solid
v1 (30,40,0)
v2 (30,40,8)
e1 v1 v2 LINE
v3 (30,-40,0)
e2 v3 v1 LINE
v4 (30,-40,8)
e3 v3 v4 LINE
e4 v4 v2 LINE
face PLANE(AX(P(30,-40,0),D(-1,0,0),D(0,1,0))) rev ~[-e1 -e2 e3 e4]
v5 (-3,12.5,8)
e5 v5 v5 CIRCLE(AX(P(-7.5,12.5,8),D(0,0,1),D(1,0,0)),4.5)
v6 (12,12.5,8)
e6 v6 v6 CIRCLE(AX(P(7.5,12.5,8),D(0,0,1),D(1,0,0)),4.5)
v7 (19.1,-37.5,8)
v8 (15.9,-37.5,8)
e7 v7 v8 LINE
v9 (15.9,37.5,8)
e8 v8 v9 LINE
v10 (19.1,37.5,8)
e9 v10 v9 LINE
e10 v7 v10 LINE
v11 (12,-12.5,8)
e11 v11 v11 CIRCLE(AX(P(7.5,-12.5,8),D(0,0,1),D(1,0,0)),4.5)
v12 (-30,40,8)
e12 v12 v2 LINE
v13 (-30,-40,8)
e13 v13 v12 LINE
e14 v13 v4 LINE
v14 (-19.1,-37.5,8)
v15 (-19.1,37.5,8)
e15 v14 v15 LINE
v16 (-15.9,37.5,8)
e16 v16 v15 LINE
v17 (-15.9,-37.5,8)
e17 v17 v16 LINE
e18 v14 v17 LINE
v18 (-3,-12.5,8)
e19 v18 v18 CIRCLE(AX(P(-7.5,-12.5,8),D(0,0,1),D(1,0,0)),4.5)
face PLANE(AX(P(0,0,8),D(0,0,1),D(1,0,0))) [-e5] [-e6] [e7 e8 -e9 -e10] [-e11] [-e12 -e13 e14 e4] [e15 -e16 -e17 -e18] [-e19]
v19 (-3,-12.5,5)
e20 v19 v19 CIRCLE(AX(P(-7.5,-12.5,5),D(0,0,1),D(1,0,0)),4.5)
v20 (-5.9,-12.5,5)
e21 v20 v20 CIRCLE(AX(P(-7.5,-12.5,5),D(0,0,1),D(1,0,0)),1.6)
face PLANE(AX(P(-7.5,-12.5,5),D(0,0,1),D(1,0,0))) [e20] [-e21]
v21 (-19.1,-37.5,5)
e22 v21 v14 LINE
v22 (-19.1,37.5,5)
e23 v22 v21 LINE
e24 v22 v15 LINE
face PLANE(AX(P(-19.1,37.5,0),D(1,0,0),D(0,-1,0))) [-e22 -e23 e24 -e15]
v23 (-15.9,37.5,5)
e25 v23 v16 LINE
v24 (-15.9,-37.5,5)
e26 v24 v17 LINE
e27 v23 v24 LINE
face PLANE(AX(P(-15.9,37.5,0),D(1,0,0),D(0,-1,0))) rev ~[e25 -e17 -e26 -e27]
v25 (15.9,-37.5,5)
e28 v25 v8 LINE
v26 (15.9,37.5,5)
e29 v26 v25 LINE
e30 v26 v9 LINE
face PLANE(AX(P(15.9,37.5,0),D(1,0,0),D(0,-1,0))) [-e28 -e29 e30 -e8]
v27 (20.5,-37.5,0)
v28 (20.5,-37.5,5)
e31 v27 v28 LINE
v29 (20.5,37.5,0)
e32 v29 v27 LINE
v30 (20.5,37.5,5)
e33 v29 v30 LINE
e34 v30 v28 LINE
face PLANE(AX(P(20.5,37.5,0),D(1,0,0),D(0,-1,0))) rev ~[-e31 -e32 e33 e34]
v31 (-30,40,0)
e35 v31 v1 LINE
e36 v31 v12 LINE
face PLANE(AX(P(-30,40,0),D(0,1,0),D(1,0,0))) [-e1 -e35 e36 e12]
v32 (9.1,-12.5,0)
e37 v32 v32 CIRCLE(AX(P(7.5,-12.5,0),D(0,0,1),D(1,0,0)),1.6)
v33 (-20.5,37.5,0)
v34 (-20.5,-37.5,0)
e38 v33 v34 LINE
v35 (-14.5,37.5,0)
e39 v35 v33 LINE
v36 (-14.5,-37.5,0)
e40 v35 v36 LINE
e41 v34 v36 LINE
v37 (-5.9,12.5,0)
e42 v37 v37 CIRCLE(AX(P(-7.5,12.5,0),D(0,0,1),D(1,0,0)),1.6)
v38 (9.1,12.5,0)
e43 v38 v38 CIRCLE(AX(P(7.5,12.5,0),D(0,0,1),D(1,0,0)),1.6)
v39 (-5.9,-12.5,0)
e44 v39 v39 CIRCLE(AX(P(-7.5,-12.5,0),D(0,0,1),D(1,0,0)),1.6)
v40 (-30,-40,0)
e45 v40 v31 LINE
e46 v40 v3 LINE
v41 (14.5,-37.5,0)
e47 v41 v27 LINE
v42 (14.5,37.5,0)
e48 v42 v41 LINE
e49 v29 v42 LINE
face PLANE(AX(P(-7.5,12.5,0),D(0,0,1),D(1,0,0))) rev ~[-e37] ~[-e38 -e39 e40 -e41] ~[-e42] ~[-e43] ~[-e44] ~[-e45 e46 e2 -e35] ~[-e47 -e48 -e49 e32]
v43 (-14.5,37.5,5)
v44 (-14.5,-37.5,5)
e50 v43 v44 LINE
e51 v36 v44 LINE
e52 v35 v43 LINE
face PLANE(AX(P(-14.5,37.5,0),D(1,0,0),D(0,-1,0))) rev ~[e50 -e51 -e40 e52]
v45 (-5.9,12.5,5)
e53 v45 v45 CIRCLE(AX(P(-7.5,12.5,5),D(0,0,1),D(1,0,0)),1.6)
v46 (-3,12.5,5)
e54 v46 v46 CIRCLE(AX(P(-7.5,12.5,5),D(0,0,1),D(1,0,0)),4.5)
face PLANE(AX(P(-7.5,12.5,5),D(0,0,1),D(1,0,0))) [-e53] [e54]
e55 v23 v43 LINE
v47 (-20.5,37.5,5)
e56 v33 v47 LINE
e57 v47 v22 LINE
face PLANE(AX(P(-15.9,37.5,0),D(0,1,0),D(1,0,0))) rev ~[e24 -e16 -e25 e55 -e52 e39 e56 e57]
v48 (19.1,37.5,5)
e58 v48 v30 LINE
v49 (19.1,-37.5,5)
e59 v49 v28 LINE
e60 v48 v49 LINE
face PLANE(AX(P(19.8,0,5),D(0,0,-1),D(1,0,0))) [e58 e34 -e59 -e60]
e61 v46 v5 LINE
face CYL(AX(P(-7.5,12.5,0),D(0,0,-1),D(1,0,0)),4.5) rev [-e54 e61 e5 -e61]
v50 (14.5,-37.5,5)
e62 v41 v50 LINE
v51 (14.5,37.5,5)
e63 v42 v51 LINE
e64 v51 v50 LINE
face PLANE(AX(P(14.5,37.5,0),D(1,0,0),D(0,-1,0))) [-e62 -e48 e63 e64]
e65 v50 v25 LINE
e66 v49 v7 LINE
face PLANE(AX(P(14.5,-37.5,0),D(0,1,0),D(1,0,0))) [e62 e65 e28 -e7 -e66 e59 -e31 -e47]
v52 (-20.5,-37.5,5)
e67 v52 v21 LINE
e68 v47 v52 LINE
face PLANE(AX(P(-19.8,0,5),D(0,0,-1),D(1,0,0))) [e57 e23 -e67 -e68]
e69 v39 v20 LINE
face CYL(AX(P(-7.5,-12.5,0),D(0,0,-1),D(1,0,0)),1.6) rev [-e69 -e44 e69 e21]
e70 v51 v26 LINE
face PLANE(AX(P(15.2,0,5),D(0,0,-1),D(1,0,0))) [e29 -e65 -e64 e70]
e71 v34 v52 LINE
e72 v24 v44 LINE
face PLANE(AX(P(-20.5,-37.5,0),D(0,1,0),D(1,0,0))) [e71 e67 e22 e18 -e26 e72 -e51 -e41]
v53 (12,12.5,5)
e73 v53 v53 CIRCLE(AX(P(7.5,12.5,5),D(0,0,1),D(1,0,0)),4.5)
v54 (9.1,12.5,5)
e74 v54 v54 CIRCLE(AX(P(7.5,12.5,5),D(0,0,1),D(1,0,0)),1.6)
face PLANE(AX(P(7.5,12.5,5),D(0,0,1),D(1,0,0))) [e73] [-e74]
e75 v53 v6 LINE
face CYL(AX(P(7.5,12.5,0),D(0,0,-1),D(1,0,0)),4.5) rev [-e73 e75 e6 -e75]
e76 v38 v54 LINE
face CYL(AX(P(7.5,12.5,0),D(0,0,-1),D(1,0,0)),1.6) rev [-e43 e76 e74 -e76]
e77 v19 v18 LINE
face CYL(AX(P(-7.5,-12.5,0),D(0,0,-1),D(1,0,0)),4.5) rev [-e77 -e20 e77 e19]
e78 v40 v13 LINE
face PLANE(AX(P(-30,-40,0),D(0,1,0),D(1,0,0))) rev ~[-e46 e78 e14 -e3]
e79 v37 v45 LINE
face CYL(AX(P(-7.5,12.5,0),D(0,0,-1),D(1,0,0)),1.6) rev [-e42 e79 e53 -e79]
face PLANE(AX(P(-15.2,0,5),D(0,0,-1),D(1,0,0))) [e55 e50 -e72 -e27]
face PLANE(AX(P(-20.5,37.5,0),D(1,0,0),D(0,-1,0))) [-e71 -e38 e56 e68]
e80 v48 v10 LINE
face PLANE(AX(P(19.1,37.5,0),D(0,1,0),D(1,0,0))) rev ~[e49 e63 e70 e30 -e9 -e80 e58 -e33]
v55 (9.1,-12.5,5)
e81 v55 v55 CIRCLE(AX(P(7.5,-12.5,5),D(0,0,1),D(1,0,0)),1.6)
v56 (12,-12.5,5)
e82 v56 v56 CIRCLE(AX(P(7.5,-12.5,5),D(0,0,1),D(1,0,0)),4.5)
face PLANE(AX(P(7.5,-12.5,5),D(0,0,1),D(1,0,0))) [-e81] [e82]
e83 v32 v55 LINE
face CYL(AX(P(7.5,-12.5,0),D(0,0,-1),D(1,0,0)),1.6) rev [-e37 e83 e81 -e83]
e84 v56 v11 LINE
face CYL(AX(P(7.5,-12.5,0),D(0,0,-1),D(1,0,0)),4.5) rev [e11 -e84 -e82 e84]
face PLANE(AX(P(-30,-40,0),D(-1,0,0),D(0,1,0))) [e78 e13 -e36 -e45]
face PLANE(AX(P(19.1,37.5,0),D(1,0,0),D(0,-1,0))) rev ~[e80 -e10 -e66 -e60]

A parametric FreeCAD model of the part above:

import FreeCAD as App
import Part
import Sketcher

V = App.Vector


def add_polygon(sketch, points):
    """Adds a closed chain of lines whose ends are joined by coincident constraints."""
    first, n = sketch.GeometryCount, len(points)
    for a, b in zip(points, points[1:] + points[:1]):
        sketch.addGeometry(Part.LineSegment(App.Vector(*a, 0), App.Vector(*b, 0)), False)
    for i in range(n):
        sketch.addConstraint(Sketcher.Constraint("Coincident", first + i, 2, first + (i + 1) % n, 1))

doc = App.newDocument("Part")
params = doc.addObject("Spreadsheet::Sheet", "Params")
for row, (alias, value) in enumerate([
    ("sketch1_diameter", "9 mm"),
    ("sketch1_width", "60 mm"),
    ("sketch1_height", "80 mm"),
    ("pad1_length", "8 mm"),
    ("sketch2_diameter", "9 mm"),
    ("sketch2_diameter2", "3.2 mm"),
    ("pad2_length", "5 mm"),
    ("sketch3_height", "75 mm"),
    ("sketch3_width", "1.4 mm"),
    ("pocket1_length", "5 mm"),
    ("sketch4_height", "75 mm"),
    ("sketch4_width", "3.2 mm"),
    ("pocket2_length", "25 mm"),
], start=1):
    params.set(f"A{row}", alias)
    params.set(f"B{row}", "=" + value)
    params.setAlias(f"B{row}", alias)

body = doc.addObject("PartDesign::Body", "Body")

sketch1 = body.newObject("Sketcher::SketchObject", "Sketch")
sketch1.AttachmentSupport = (doc.getObject("XY_Plane"), [""])
sketch1.MapMode = "FlatFace"
add_polygon(sketch1, [(-30, 40), (-30, -40), (30, -40), (30, 40)])
sketch1.addGeometry(Part.Circle(V(-7.5, -12.5, 0), V(0, 0, 1), 4.5), False)
sketch1.addGeometry(Part.Circle(V(7.5, -12.5, 0), V(0, 0, 1), 4.5), False)
sketch1.addGeometry(Part.Circle(V(-7.5, 12.5, 0), V(0, 0, 1), 4.5), False)
sketch1.addGeometry(Part.Circle(V(7.5, 12.5, 0), V(0, 0, 1), 4.5), False)
sketch1.addConstraint([
    Sketcher.Constraint("Vertical", 0),
    Sketcher.Constraint("Horizontal", 1),
    Sketcher.Constraint("Vertical", 2),
    Sketcher.Constraint("Horizontal", 3),
    Sketcher.Constraint("Equal", 4, 5),
    Sketcher.Constraint("Equal", 5, 6),
    Sketcher.Constraint("Equal", 6, 7),
    Sketcher.Constraint("Symmetric", 5, 3, 6, 3, -1, 1),
    Sketcher.Constraint("Symmetric", 4, 3, 7, 3, -1, 1),
    Sketcher.Constraint("Symmetric", 0, 2, 2, 2, -1, 1),
    Sketcher.Constraint("Symmetric", 4, 3, 5, 3, -2),
    Sketcher.Constraint("Diameter", 4, 9.0),
    Sketcher.Constraint("DistanceX", 1, 1, 1, 2, 60.0),
    Sketcher.Constraint("DistanceY", 0, 2, 0, 1, 80.0),
    Sketcher.Constraint("DistanceX", 4, 3, 5, 3, 15.0),
    Sketcher.Constraint("DistanceY", 4, 3, 6, 3, 25.0),
])
sketch1.setExpression("Constraints[15]", "Params.sketch1_diameter")
sketch1.setExpression("Constraints[16]", "Params.sketch1_width")
sketch1.setExpression("Constraints[17]", "Params.sketch1_height")
pad1 = body.newObject("PartDesign::Pad", "Pad")
pad1.Profile = sketch1
pad1.setExpression("Length", "Params.pad1_length")

sketch2 = body.newObject("Sketcher::SketchObject", "Sketch001")
sketch2.AttachmentSupport = (doc.getObject("XY_Plane"), [""])
sketch2.MapMode = "FlatFace"
sketch2.addGeometry([
    Part.Circle(V(-7.5, 12.5, 0), V(0, 0, 1), 4.5),
    Part.Circle(V(-7.5, 12.5, 0), V(0, 0, 1), 1.6),
    Part.Circle(V(-7.5, -12.5, 0), V(0, 0, 1), 4.5),
    Part.Circle(V(-7.5, -12.5, 0), V(0, 0, 1), 1.6),
    Part.Circle(V(7.5, -12.5, 0), V(0, 0, 1), 4.5),
    Part.Circle(V(7.5, -12.5, 0), V(0, 0, 1), 1.6),
    Part.Circle(V(7.5, 12.5, 0), V(0, 0, 1), 4.5),
    Part.Circle(V(7.5, 12.5, 0), V(0, 0, 1), 1.6),
], False)
sketch2.addConstraint([
    Sketcher.Constraint("Coincident", 1, 3, 0, 3),
    Sketcher.Constraint("Coincident", 3, 3, 2, 3),
    Sketcher.Constraint("Coincident", 5, 3, 4, 3),
    Sketcher.Constraint("Coincident", 7, 3, 6, 3),
    Sketcher.Constraint("Equal", 0, 2),
    Sketcher.Constraint("Equal", 1, 3),
    Sketcher.Constraint("Equal", 2, 4),
    Sketcher.Constraint("Equal", 3, 5),
    Sketcher.Constraint("Equal", 4, 6),
    Sketcher.Constraint("Equal", 5, 7),
    Sketcher.Constraint("Symmetric", 0, 3, 4, 3, -1, 1),
    Sketcher.Constraint("Symmetric", 2, 3, 6, 3, -1, 1),
    Sketcher.Constraint("Symmetric", 2, 3, 4, 3, -2),
    Sketcher.Constraint("Diameter", 0, 9.0),
    Sketcher.Constraint("Diameter", 1, 3.2),
    Sketcher.Constraint("DistanceY", 2, 3, 0, 3, 25.0),
    Sketcher.Constraint("DistanceX", 2, 3, 4, 3, 15.0),
])
sketch2.setExpression("Constraints[13]", "Params.sketch2_diameter")
sketch2.setExpression("Constraints[14]", "Params.sketch2_diameter2")
pad2 = body.newObject("PartDesign::Pad", "Pad001")
pad2.Profile = sketch2
pad2.setExpression("Length", "Params.pad2_length")

sketch3 = body.newObject("Sketcher::SketchObject", "Sketch002")
sketch3.AttachmentSupport = (doc.getObject("XY_Plane"), [""])
sketch3.MapMode = "FlatFace"
add_polygon(sketch3, [(-20.5, -37.5), (-20.5, 37.5), (-19.1, 37.5), (-19.1, -37.5)])
add_polygon(sketch3, [(-15.9, -37.5), (-15.9, 37.5), (-14.5, 37.5), (-14.5, -37.5)])
add_polygon(sketch3, [(14.5, -37.5), (14.5, 37.5), (15.9, 37.5), (15.9, -37.5)])
add_polygon(sketch3, [(19.1, -37.5), (19.1, 37.5), (20.5, 37.5), (20.5, -37.5)])
sketch3.addConstraint([
    Sketcher.Constraint("Vertical", 0),
    Sketcher.Constraint("Horizontal", 1),
    Sketcher.Constraint("Vertical", 2),
    Sketcher.Constraint("Horizontal", 3),
    Sketcher.Constraint("Vertical", 4),
    Sketcher.Constraint("Horizontal", 5),
    Sketcher.Constraint("Vertical", 6),
    Sketcher.Constraint("Horizontal", 7),
    Sketcher.Constraint("Vertical", 8),
    Sketcher.Constraint("Horizontal", 9),
    Sketcher.Constraint("Vertical", 10),
    Sketcher.Constraint("Horizontal", 11),
    Sketcher.Constraint("Vertical", 12),
    Sketcher.Constraint("Horizontal", 13),
    Sketcher.Constraint("Vertical", 14),
    Sketcher.Constraint("Horizontal", 15),
    Sketcher.Constraint("Symmetric", 6, 2, 8, 2, -1, 1),
    Sketcher.Constraint("Symmetric", 4, 2, 10, 2, -1, 1),
    Sketcher.Constraint("Symmetric", 2, 2, 12, 2, -1, 1),
    Sketcher.Constraint("Symmetric", 0, 2, 14, 2, -1, 1),
    Sketcher.Constraint("Horizontal", 1, 2, 4, 2),
    Sketcher.Constraint("Horizontal", 3, 2, 6, 2),
    Sketcher.Constraint("Horizontal", 5, 2, 8, 2),
    Sketcher.Constraint("Equal", 3, 5),
    Sketcher.Constraint("DistanceY", 0, 1, 0, 2, 75.0),
    Sketcher.Constraint("DistanceX", 1, 1, 1, 2, 1.4),
    Sketcher.Constraint("DistanceX", 0, 2, 5, 2, 6.0),
    Sketcher.Constraint("DistanceX", 5, 2, 8, 2, 29.0),
])
sketch3.setExpression("Constraints[40]", "Params.sketch3_height")
sketch3.setExpression("Constraints[41]", "Params.sketch3_width")
pocket1 = body.newObject("PartDesign::Pocket", "Pocket")
pocket1.Profile = sketch3
pocket1.setExpression("Length", "Params.pocket1_length")
pocket1.Reversed = True

sketch4 = body.newObject("Sketcher::SketchObject", "Sketch003")
sketch4.AttachmentSupport = (doc.getObject("XY_Plane"), [""])
sketch4.MapMode = "FlatFace"
add_polygon(sketch4, [(-19.1, -37.5), (-19.1, 37.5), (-15.9, 37.5), (-15.9, -37.5)])
add_polygon(sketch4, [(15.9, -37.5), (15.9, 37.5), (19.1, 37.5), (19.1, -37.5)])
sketch4.addConstraint([
    Sketcher.Constraint("Vertical", 0),
    Sketcher.Constraint("Horizontal", 1),
    Sketcher.Constraint("Vertical", 2),
    Sketcher.Constraint("Horizontal", 3),
    Sketcher.Constraint("Vertical", 4),
    Sketcher.Constraint("Horizontal", 5),
    Sketcher.Constraint("Vertical", 6),
    Sketcher.Constraint("Horizontal", 7),
    Sketcher.Constraint("Symmetric", 2, 2, 4, 2, -1, 1),
    Sketcher.Constraint("Symmetric", 0, 2, 6, 2, -1, 1),
    Sketcher.Constraint("Horizontal", 1, 2, 4, 2),
    Sketcher.Constraint("DistanceY", 0, 1, 0, 2, 75.0),
    Sketcher.Constraint("DistanceX", 1, 1, 1, 2, 3.2),
    Sketcher.Constraint("DistanceX", 0, 2, 4, 2, 35.0),
])
sketch4.setExpression("Constraints[19]", "Params.sketch4_height")
sketch4.setExpression("Constraints[20]", "Params.sketch4_width")
pocket2 = body.newObject("PartDesign::Pocket", "Pocket001")
pocket2.Profile = sketch4
pocket2.setExpression("Length", "Params.pocket2_length")
pocket2.Reversed = True

doc.recompute()
